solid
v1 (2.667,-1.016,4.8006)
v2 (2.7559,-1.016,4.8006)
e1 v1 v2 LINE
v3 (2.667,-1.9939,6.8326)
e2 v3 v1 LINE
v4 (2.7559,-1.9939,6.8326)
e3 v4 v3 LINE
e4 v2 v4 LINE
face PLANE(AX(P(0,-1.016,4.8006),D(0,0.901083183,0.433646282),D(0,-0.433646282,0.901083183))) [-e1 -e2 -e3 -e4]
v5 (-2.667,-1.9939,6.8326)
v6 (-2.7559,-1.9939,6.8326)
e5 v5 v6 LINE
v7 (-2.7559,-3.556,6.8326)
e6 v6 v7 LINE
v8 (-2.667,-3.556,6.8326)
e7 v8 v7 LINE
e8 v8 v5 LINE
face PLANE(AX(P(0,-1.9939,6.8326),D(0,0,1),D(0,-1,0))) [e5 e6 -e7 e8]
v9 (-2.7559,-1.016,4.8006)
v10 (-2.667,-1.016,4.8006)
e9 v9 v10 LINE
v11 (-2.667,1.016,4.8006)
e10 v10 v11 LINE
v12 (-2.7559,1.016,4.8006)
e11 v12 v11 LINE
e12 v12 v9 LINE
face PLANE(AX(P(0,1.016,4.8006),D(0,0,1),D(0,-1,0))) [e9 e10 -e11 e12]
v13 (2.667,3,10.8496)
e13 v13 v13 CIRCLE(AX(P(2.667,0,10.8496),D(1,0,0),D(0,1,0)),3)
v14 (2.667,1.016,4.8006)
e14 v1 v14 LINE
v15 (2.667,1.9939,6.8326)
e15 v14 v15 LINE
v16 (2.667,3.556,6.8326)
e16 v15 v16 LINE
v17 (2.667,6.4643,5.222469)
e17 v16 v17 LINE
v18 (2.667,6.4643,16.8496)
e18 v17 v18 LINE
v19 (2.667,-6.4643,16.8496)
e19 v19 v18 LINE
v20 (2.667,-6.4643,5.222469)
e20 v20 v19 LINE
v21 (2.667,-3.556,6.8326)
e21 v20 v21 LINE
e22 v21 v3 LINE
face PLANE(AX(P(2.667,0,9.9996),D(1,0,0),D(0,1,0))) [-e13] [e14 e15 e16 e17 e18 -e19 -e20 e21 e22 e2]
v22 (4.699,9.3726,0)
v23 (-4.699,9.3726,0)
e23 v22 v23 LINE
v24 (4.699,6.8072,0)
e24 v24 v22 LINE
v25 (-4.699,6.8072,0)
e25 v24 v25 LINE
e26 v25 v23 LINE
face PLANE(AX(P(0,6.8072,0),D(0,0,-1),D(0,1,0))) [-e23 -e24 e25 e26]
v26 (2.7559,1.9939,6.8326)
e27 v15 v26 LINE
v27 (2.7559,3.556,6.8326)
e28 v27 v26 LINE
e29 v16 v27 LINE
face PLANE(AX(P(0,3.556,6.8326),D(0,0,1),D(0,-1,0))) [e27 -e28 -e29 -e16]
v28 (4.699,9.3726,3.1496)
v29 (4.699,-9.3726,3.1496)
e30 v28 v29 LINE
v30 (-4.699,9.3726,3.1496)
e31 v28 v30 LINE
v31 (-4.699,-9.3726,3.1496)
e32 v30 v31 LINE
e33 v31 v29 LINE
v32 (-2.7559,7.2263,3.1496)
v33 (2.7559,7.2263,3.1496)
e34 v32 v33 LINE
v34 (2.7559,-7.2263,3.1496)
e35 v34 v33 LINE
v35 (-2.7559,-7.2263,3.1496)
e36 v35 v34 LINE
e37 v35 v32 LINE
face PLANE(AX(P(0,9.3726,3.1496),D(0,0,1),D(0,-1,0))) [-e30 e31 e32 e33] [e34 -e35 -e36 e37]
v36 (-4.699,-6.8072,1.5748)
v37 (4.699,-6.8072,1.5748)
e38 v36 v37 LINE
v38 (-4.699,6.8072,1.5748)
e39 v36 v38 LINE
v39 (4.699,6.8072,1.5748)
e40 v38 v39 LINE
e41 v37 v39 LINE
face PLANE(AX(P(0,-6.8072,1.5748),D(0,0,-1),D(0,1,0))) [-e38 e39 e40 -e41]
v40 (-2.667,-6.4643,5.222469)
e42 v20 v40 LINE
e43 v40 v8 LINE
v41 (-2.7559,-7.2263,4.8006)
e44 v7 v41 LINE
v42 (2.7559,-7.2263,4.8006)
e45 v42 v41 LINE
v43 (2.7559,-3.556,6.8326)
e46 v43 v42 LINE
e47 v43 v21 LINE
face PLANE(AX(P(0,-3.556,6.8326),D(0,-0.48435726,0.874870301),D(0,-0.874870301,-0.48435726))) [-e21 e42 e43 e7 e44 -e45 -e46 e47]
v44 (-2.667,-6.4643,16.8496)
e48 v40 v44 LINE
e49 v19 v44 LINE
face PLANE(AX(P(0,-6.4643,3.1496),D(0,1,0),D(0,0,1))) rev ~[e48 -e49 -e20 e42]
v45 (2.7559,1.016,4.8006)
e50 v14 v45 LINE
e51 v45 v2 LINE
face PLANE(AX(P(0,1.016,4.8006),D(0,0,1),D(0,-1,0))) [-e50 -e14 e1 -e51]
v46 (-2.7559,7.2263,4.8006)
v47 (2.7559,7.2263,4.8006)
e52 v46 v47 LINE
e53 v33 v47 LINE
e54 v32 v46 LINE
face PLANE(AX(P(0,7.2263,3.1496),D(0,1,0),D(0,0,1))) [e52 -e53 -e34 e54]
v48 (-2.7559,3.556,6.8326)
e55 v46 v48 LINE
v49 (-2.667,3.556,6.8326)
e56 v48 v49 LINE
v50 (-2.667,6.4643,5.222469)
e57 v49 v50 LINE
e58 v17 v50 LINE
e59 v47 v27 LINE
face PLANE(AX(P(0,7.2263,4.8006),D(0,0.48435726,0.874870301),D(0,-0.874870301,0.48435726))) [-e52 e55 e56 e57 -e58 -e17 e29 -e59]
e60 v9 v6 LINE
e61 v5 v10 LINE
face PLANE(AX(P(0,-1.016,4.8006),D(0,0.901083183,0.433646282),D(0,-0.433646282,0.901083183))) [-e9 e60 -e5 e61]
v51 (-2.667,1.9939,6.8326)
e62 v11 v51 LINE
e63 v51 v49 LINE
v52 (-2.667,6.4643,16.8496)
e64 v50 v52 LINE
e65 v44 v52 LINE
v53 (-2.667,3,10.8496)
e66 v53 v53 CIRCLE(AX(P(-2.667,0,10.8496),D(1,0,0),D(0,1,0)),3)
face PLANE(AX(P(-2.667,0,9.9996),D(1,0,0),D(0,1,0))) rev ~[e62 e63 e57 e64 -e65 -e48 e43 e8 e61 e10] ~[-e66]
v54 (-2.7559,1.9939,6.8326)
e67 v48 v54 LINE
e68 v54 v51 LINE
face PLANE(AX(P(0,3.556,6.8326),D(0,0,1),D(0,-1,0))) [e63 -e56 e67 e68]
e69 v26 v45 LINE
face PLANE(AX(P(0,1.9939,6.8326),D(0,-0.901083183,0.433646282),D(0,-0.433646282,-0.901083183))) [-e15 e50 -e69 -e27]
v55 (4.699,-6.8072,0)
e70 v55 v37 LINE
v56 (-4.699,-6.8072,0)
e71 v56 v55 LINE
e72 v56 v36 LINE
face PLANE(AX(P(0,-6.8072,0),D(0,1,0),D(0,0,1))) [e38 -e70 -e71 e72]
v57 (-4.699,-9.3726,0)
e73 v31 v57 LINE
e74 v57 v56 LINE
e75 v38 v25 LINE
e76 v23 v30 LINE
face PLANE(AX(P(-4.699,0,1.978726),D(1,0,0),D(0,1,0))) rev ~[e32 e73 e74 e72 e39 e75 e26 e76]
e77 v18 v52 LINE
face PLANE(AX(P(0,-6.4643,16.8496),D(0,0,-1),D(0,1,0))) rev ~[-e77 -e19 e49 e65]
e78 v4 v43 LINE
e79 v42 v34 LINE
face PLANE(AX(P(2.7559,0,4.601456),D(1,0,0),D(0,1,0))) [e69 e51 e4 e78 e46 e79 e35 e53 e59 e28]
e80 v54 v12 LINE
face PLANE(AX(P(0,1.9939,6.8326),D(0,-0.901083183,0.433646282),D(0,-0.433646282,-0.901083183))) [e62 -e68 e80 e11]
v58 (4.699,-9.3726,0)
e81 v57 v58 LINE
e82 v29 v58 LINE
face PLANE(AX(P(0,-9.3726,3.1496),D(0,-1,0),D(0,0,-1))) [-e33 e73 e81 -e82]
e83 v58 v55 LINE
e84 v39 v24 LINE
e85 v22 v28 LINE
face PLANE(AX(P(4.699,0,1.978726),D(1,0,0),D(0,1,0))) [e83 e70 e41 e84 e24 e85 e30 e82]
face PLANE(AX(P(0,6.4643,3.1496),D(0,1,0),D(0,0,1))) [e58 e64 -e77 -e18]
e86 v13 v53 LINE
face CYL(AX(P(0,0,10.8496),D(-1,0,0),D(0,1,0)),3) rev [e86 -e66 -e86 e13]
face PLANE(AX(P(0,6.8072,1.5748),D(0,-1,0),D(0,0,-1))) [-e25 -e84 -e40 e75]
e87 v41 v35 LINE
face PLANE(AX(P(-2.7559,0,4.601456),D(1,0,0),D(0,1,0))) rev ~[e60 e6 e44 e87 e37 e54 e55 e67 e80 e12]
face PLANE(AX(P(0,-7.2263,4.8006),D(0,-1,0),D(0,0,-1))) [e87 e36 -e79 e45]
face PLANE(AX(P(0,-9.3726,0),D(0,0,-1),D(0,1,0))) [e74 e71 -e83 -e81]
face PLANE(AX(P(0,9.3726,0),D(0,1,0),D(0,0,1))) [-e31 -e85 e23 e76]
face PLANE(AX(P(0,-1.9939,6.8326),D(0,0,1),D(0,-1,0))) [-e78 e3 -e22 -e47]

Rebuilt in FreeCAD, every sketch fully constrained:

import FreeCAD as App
import Part
import Sketcher
from FreeCAD import Vector
Q = App.Units.Quantity

doc = App.newDocument("Part")
body = doc.addObject("PartDesign::Body", "Body")

# Sketch on YZ plane
sketch1 = doc.addObject("Sketcher::SketchObject", "Sketch")
body.addObject(sketch1)
sketch1.AttachmentSupport = (doc.YZ_Plane, [""])
sketch1.MapMode = "FlatFace"
sketch1.addGeometry(Part.LineSegment(Vector(9.4, 3.1, 0), Vector(-9.4, 3.1, 0)), False)
sketch1.addGeometry(Part.LineSegment(Vector(-9.4, 3.1, 0), Vector(-9.4, 0, 0)), False)
sketch1.addGeometry(Part.LineSegment(Vector(-9.4, 0, 0), Vector(-6.8, 0, 0)), False)
sketch1.addGeometry(Part.LineSegment(Vector(-6.8, 0, 0), Vector(-6.8, 1.6, 0)), False)
sketch1.addGeometry(Part.LineSegment(Vector(-6.8, 1.6, 0), Vector(6.8, 1.6, 0)), False)
sketch1.addGeometry(Part.LineSegment(Vector(6.8, 1.6, 0), Vector(6.8, 0, 0)), False)
sketch1.addGeometry(Part.LineSegment(Vector(6.8, 0, 0), Vector(9.4, 0, 0)), False)
sketch1.addGeometry(Part.LineSegment(Vector(9.4, 0, 0), Vector(9.4, 3.1, 0)), False)
sketch1.addConstraint(Sketcher.Constraint("Coincident", 0, 2, 1, 1))
sketch1.addConstraint(Sketcher.Constraint("Coincident", 1, 2, 2, 1))
sketch1.addConstraint(Sketcher.Constraint("Coincident", 2, 2, 3, 1))
sketch1.addConstraint(Sketcher.Constraint("Coincident", 3, 2, 4, 1))
sketch1.addConstraint(Sketcher.Constraint("Coincident", 4, 2, 5, 1))
sketch1.addConstraint(Sketcher.Constraint("Coincident", 5, 2, 6, 1))
sketch1.addConstraint(Sketcher.Constraint("Coincident", 6, 2, 7, 1))
sketch1.addConstraint(Sketcher.Constraint("Coincident", 7, 2, 0, 1))
sketch1.addConstraint(Sketcher.Constraint("Horizontal", 0))
sketch1.addConstraint(Sketcher.Constraint("Vertical", 1))
sketch1.addConstraint(Sketcher.Constraint("Horizontal", 2))
sketch1.addConstraint(Sketcher.Constraint("Vertical", 3))
sketch1.addConstraint(Sketcher.Constraint("Horizontal", 4))
sketch1.addConstraint(Sketcher.Constraint("Vertical", 5))
sketch1.addConstraint(Sketcher.Constraint("Horizontal", 6))
sketch1.addConstraint(Sketcher.Constraint("Vertical", 7))
sketch1.addConstraint(Sketcher.Constraint("Symmetric", 2, 2, 5, 2, -1, 1))
sketch1.addConstraint(Sketcher.Constraint("Symmetric", 1, 2, 6, 2, -2))
sketch1.addConstraint(Sketcher.Constraint("DistanceX", 0, 2, 0, 1, Q("0.738 in")))
sketch1.addConstraint(Sketcher.Constraint("DistanceX", 2, 1, 2, 2, Q("0.101 in")))
sketch1.addConstraint(Sketcher.Constraint("DistanceY", 1, 2, 1, 1, Q("0.124 in")))
sketch1.addConstraint(Sketcher.Constraint("DistanceY", 3, 1, 3, 2, Q("0.062 in")))
pad1 = doc.addObject("PartDesign::Pad", "Pad")
body.addObject(pad1)
pad1.Profile = sketch1
pad1.Length = Q("0.37 in")
pad1.Midplane = True

# Sketch on YZ plane
sketch2 = doc.addObject("Sketcher::SketchObject", "Sketch001")
body.addObject(sketch2)
sketch2.AttachmentSupport = (doc.YZ_Plane, [""])
sketch2.MapMode = "FlatFace"
sketch2.addGeometry(Part.LineSegment(Vector(-7.2, 4.8, 0), Vector(-7.2, 3.1, 0)), False)
sketch2.addGeometry(Part.LineSegment(Vector(-7.2, 3.1, 0), Vector(7.2, 3.1, 0)), False)
sketch2.addGeometry(Part.LineSegment(Vector(7.2, 3.1, 0), Vector(7.2, 4.8, 0)), False)
sketch2.addGeometry(Part.LineSegment(Vector(7.2, 4.8, 0), Vector(3.6, 6.8, 0)), False)
sketch2.addGeometry(Part.LineSegment(Vector(3.6, 6.8, 0), Vector(2, 6.8, 0)), False)
sketch2.addGeometry(Part.LineSegment(Vector(2, 6.8, 0), Vector(1, 4.8, 0)), False)
sketch2.addGeometry(Part.LineSegment(Vector(1, 4.8, 0), Vector(-1, 4.8, 0)), False)
sketch2.addGeometry(Part.LineSegment(Vector(-1, 4.8, 0), Vector(-2, 6.8, 0)), False)
sketch2.addGeometry(Part.LineSegment(Vector(-2, 6.8, 0), Vector(-3.6, 6.8, 0)), False)
sketch2.addGeometry(Part.LineSegment(Vector(-3.6, 6.8, 0), Vector(-7.2, 4.8, 0)), False)
sketch2.addConstraint(Sketcher.Constraint("Coincident", 0, 2, 1, 1))
sketch2.addConstraint(Sketcher.Constraint("Coincident", 1, 2, 2, 1))
sketch2.addConstraint(Sketcher.Constraint("Coincident", 2, 2, 3, 1))
sketch2.addConstraint(Sketcher.Constraint("Coincident", 3, 2, 4, 1))
sketch2.addConstraint(Sketcher.Constraint("Coincident", 4, 2, 5, 1))
sketch2.addConstraint(Sketcher.Constraint("Coincident", 5, 2, 6, 1))
sketch2.addConstraint(Sketcher.Constraint("Coincident", 6, 2, 7, 1))
sketch2.addConstraint(Sketcher.Constraint("Coincident", 7, 2, 8, 1))
sketch2.addConstraint(Sketcher.Constraint("Coincident", 8, 2, 9, 1))
sketch2.addConstraint(Sketcher.Constraint("Coincident", 9, 2, 0, 1))
sketch2.addConstraint(Sketcher.Constraint("Vertical", 0))
sketch2.addConstraint(Sketcher.Constraint("Horizontal", 1))
sketch2.addConstraint(Sketcher.Constraint("Vertical", 2))
sketch2.addConstraint(Sketcher.Constraint("Horizontal", 4))
sketch2.addConstraint(Sketcher.Constraint("Horizontal", 6))
sketch2.addConstraint(Sketcher.Constraint("Horizontal", 8))
sketch2.addConstraint(Sketcher.Constraint("Symmetric", 4, 2, 7, 2, -2))
sketch2.addConstraint(Sketcher.Constraint("Symmetric", 2, 2, 9, 2, -2))
sketch2.addConstraint(Sketcher.Constraint("Horizontal", 2, 2, 5, 2))
sketch2.addConstraint(Sketcher.Constraint("Equal", 4, 8))
sketch2.addConstraint(Sketcher.Constraint("Equal", 5, 7))
sketch2.addConstraint(Sketcher.Constraint("DistanceX", 6, 2, 6, 1, Q("0.08 in")))
sketch2.addConstraint(Sketcher.Constraint("DistanceX", 5, 2, 3, 2, Q("0.1 in")))
sketch2.addConstraint(Sketcher.Constraint("DistanceX", 1, 1, 1, 2, Q("0.569 in")))
sketch2.addConstraint(Sketcher.Constraint("DistanceY", 0, 2, 0, 1, Q("0.065 in")))
sketch2.addConstraint(Sketcher.Constraint("DistanceY", 2, 2, 3, 2, Q("0.08 in")))
sketch2.addConstraint(Sketcher.Constraint("DistanceX", 4, 2, 4, 1, Q("0.0615 in")))
sketch2.addConstraint(Sketcher.Constraint("DistanceY", -1, 1, 0, 2, Q("0.124 in")))
pad2 = doc.addObject("PartDesign::Pad", "Pad001")
body.addObject(pad2)
pad2.Profile = sketch2
pad2.Length = Q("0.217 in")
pad2.Midplane = True

# Sketch on YZ plane
sketch3 = doc.addObject("Sketcher::SketchObject", "Sketch002")
body.addObject(sketch3)
sketch3.AttachmentSupport = (doc.YZ_Plane, [""])
sketch3.MapMode = "FlatFace"
sketch3.addGeometry(Part.LineSegment(Vector(-6.5, 16.8, 0), Vector(-6.5, 3.1, 0)), False)
sketch3.addGeometry(Part.LineSegment(Vector(-6.5, 3.1, 0), Vector(6.5, 3.1, 0)), False)
sketch3.addGeometry(Part.LineSegment(Vector(6.5, 3.1, 0), Vector(6.5, 16.8, 0)), False)
sketch3.addGeometry(Part.LineSegment(Vector(6.5, 16.8, 0), Vector(-6.5, 16.8, 0)), False)
sketch3.addGeometry(Part.Circle(Vector(0, 10.8, 0), Vector(0, 0, 1), 3), False)
sketch3.addConstraint(Sketcher.Constraint("Coincident", 0, 2, 1, 1))
sketch3.addConstraint(Sketcher.Constraint("Coincident", 1, 2, 2, 1))
sketch3.addConstraint(Sketcher.Constraint("Coincident", 2, 2, 3, 1))
sketch3.addConstraint(Sketcher.Constraint("Coincident", 3, 2, 0, 1))
sketch3.addConstraint(Sketcher.Constraint("Vertical", 0))
sketch3.addConstraint(Sketcher.Constraint("Horizontal", 1))
sketch3.addConstraint(Sketcher.Constraint("Vertical", 2))
sketch3.addConstraint(Sketcher.Constraint("Horizontal", 3))
sketch3.addConstraint(Sketcher.Constraint("PointOnObject", 4, 3, -2))
sketch3.addConstraint(Sketcher.Constraint("Diameter", 4, Q("6 mm")))
sketch3.addConstraint(Sketcher.Constraint("DistanceX", 1, 1, 1, 2, Q("0.509 in")))
sketch3.addConstraint(Sketcher.Constraint("DistanceY", -1, 1, 0, 2, Q("0.124 in")))
sketch3.addConstraint(Sketcher.Constraint("DistanceY", 0, 2, 0, 1, Q("13.7 mm")))
sketch3.addConstraint(Sketcher.Constraint("DistanceX", 0, 2, -1, 1, Q("0.2545 in")))
sketch3.addConstraint(Sketcher.Constraint("DistanceY", -1, 1, 4, 3, Q("10.8496 mm")))
pad3 = doc.addObject("PartDesign::Pad", "Pad002")
body.addObject(pad3)
pad3.Profile = sketch3
pad3.Length = Q("0.21 in")
pad3.Midplane = True

doc.recompute()
